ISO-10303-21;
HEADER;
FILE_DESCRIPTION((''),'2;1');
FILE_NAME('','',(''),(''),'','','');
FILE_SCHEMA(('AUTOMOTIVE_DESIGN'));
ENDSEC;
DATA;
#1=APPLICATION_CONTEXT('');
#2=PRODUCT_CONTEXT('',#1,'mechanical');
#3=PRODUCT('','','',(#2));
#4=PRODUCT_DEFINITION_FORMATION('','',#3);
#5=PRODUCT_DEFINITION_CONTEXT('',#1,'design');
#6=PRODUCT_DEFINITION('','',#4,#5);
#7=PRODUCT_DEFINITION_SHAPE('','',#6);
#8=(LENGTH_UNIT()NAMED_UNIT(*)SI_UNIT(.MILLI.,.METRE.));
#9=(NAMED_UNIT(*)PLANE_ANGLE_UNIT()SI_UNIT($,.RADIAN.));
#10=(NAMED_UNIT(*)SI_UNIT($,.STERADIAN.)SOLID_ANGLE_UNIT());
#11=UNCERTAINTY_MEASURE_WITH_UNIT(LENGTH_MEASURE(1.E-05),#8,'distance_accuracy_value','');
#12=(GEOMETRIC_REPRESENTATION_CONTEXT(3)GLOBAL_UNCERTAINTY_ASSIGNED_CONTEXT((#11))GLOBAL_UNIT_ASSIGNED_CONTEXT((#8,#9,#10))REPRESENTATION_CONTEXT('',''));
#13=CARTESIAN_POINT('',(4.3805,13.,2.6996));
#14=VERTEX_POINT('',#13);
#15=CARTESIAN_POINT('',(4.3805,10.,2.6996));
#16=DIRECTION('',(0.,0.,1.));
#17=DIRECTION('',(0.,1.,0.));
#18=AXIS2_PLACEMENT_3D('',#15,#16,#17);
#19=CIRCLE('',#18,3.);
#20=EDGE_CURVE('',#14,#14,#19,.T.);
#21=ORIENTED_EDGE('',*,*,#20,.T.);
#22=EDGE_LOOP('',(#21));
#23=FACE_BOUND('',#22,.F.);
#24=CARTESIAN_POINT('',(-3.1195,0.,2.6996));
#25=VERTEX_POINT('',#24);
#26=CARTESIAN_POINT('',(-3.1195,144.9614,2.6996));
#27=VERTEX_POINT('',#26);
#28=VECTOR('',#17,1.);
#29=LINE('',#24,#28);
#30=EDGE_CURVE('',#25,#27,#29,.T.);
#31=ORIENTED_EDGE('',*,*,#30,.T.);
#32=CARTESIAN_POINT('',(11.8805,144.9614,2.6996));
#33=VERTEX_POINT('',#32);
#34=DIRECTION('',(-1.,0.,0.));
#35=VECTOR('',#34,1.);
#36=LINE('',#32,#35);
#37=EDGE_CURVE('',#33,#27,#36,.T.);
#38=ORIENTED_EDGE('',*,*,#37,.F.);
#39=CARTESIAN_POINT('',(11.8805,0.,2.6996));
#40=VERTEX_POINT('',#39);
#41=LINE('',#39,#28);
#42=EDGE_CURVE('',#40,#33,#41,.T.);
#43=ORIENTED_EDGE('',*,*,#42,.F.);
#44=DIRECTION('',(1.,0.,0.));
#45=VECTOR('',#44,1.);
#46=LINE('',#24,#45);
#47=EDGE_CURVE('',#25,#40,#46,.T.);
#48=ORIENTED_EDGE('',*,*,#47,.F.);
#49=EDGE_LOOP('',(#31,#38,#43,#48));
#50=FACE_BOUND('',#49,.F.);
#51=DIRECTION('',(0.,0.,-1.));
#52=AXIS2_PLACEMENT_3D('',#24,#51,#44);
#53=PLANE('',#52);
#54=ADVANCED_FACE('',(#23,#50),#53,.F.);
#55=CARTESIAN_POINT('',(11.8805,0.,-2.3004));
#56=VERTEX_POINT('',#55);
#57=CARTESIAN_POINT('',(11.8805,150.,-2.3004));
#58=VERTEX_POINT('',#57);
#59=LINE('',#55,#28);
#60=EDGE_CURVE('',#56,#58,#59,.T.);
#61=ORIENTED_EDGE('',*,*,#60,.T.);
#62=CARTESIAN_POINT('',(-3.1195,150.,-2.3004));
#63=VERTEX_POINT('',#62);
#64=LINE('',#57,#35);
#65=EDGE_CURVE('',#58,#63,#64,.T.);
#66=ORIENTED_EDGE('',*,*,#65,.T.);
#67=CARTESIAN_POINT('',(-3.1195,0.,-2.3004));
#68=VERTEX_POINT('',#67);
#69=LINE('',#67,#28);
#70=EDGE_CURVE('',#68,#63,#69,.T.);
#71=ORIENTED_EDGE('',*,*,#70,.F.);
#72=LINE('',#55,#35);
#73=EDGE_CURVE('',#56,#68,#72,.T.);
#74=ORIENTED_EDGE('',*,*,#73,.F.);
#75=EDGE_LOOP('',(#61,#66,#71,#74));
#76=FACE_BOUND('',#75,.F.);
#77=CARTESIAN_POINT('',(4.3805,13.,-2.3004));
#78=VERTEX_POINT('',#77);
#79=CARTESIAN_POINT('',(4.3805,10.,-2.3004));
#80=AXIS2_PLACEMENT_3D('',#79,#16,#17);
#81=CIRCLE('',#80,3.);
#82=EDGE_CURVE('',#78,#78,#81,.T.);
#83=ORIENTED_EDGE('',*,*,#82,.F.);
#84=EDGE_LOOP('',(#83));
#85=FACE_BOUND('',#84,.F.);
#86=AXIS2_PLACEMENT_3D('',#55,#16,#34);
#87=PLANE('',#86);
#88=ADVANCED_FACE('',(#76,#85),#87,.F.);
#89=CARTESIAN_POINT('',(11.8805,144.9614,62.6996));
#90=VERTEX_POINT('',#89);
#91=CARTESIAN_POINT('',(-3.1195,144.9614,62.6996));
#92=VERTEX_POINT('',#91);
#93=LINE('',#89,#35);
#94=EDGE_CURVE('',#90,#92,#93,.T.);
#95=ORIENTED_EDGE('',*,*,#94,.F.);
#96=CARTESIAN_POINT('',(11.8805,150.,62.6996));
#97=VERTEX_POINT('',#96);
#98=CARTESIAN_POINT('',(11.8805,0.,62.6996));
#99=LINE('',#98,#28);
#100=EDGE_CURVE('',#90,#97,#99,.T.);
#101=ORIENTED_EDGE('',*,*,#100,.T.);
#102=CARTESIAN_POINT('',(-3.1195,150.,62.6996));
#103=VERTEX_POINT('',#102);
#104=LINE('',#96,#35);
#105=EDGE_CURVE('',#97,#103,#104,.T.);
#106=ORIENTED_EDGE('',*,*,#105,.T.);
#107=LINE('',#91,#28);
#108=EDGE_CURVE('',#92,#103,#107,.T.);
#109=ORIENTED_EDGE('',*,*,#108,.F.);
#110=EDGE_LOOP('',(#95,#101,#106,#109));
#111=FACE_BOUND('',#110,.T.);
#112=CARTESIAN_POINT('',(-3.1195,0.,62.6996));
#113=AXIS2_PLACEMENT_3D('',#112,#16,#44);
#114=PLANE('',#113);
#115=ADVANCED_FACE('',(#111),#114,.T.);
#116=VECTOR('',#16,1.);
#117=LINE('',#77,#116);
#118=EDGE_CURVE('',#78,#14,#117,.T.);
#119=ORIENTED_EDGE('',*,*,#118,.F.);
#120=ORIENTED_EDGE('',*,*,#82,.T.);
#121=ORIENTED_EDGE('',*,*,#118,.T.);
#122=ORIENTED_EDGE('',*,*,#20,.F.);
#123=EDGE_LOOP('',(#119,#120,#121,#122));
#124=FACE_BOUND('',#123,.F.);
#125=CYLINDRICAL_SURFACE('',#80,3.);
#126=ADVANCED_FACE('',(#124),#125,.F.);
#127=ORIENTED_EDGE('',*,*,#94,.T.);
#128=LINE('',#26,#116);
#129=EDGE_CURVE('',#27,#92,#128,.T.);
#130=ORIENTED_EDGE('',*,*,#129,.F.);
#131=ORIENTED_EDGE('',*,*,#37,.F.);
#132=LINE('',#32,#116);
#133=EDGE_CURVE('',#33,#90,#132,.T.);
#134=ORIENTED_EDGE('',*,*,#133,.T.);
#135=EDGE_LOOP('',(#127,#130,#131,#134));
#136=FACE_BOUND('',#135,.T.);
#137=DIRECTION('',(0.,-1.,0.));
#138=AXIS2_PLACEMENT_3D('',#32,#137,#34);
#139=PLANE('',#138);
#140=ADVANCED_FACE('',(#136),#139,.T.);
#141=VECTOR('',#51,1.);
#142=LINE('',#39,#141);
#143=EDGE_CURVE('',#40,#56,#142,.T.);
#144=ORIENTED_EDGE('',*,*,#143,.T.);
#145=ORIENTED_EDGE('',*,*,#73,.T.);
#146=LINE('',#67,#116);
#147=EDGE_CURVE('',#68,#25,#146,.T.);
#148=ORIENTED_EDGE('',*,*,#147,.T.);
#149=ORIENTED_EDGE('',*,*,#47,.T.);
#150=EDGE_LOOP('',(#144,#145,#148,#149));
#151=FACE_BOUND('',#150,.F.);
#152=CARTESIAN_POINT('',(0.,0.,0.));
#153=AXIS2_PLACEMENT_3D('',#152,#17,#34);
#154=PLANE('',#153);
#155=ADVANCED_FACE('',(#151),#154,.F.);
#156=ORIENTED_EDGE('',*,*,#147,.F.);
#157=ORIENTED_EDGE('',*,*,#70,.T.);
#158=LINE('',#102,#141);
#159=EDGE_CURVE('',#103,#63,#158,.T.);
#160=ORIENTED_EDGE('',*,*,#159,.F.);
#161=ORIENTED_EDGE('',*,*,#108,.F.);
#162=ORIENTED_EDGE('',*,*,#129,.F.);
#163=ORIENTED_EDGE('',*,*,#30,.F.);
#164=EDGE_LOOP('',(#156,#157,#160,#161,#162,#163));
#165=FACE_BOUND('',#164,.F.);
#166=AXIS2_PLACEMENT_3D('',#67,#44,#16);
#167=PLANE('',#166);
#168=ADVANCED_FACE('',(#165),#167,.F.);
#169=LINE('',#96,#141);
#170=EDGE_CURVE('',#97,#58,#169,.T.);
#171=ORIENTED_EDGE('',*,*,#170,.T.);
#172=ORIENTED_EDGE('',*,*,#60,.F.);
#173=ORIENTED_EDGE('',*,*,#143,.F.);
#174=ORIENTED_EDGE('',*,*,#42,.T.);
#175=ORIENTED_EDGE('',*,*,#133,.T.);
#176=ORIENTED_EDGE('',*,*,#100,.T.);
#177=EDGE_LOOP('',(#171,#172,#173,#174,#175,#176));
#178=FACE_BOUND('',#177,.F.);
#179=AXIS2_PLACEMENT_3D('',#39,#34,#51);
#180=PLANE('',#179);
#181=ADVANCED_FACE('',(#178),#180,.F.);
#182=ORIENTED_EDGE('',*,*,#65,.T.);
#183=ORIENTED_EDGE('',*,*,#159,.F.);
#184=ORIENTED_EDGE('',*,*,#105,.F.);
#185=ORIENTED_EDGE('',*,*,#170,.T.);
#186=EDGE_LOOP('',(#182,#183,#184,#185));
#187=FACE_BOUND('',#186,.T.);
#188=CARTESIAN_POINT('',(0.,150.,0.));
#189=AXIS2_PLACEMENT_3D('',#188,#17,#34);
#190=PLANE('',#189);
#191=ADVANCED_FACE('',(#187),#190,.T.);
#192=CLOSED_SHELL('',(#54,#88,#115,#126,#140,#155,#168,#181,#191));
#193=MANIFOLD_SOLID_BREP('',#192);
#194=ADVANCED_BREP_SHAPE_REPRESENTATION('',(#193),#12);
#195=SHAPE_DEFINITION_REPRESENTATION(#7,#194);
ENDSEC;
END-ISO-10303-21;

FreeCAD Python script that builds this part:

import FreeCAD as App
import Part
import Sketcher
Q = App.Units.Quantity


def add_polygon(sketch, points):
    """Adds a closed chain of lines whose ends are joined by coincident constraints."""
    first, n = sketch.GeometryCount, len(points)
    for a, b in zip(points, points[1:] + points[:1]):
        sketch.addGeometry(Part.LineSegment(App.Vector(*a, 0), App.Vector(*b, 0)), False)
    for i in range(n):
        sketch.addConstraint(Sketcher.Constraint("Coincident", first + i, 2, first + (i + 1) % n, 1))

doc = App.newDocument("Part")
body = doc.addObject("PartDesign::Body", "Body")

# Sketch on XZ plane
sketch1 = body.newObject("Sketcher::SketchObject", "Sketch")
sketch1.AttachmentSupport = (doc.getObject("XZ_Plane"), [""])
sketch1.MapMode = "FlatFace"
add_polygon(sketch1, [(-3, -2), (-3, 3), (12, 3), (12, -2)])  # lines 0-3
sketch1.addConstraint([
    Sketcher.Constraint("Vertical", 0),
    Sketcher.Constraint("Horizontal", 1),
    Sketcher.Constraint("Vertical", 2),
    Sketcher.Constraint("Horizontal", 3),
    Sketcher.Constraint("DistanceX", 1, 1, 1, 2, Q("15 mm")),
    Sketcher.Constraint("DistanceY", 0, 1, 0, 2, Q("5 mm")),
    Sketcher.Constraint("DistanceX", 0, 2, -1, 1, Q("3.1195 mm")),
    Sketcher.Constraint("DistanceY", -1, 1, 0, 2, Q("2.6996 mm")),
])
pad1 = body.newObject("PartDesign::Pad", "Pad")
pad1.Profile = sketch1
pad1.Length = 150
pad1.Reversed = True

# Sketch on XY plane
sketch2 = body.newObject("Sketcher::SketchObject", "Sketch001")
sketch2.AttachmentSupport = (doc.getObject("XY_Plane"), [""])
sketch2.MapMode = "FlatFace"
sketch2.AttachmentOffset = App.Placement(App.Vector(0, 0, 2.6996), App.Rotation())
add_polygon(sketch2, [(12, 145), (12, 150), (-3, 150), (-3, 145)])  # lines 0-3
sketch2.addConstraint([
    Sketcher.Constraint("Vertical", 0),
    Sketcher.Constraint("Horizontal", 1),
    Sketcher.Constraint("Vertical", 2),
    Sketcher.Constraint("Horizontal", 3),
    Sketcher.Constraint("DistanceX", 1, 2, 1, 1, Q("15 mm")),
    Sketcher.Constraint("DistanceY", -1, 1, 0, 2, Q("150 mm")),
    Sketcher.Constraint("DistanceY", 0, 1, 0, 2, Q("5.0386 mm")),
    Sketcher.Constraint("DistanceX", -1, 1, 0, 2, Q("11.8805 mm")),
])
pad2 = body.newObject("PartDesign::Pad", "Pad001")
pad2.Profile = sketch2
pad2.Length = 60

# Sketch on XY plane
sketch3 = body.newObject("Sketcher::SketchObject", "Sketch002")
sketch3.AttachmentSupport = (doc.getObject("XY_Plane"), [""])
sketch3.MapMode = "FlatFace"
sketch3.AttachmentOffset = App.Placement(App.Vector(0, 0, -2.3004), App.Rotation())
sketch3.addGeometry(Part.Circle(App.Vector(4.4, 10, 0), App.Vector(0, 0, 1), 3), False)
sketch3.addConstraint([
    Sketcher.Constraint("Diameter", 0, Q("6 mm")),
    Sketcher.Constraint("DistanceY", -1, 1, 0, 3, Q("10 mm")),
    Sketcher.Constraint("DistanceX", -1, 1, 0, 3, Q("4.3805 mm")),
])
doc.recompute()
hole = body.newObject("PartDesign::Hole", "Hole")
hole.Profile = sketch3
hole.ThreadType = "None"
hole.Diameter = 6
hole.DepthType = "ThroughAll"
hole.Reversed = True

doc.recompute()
